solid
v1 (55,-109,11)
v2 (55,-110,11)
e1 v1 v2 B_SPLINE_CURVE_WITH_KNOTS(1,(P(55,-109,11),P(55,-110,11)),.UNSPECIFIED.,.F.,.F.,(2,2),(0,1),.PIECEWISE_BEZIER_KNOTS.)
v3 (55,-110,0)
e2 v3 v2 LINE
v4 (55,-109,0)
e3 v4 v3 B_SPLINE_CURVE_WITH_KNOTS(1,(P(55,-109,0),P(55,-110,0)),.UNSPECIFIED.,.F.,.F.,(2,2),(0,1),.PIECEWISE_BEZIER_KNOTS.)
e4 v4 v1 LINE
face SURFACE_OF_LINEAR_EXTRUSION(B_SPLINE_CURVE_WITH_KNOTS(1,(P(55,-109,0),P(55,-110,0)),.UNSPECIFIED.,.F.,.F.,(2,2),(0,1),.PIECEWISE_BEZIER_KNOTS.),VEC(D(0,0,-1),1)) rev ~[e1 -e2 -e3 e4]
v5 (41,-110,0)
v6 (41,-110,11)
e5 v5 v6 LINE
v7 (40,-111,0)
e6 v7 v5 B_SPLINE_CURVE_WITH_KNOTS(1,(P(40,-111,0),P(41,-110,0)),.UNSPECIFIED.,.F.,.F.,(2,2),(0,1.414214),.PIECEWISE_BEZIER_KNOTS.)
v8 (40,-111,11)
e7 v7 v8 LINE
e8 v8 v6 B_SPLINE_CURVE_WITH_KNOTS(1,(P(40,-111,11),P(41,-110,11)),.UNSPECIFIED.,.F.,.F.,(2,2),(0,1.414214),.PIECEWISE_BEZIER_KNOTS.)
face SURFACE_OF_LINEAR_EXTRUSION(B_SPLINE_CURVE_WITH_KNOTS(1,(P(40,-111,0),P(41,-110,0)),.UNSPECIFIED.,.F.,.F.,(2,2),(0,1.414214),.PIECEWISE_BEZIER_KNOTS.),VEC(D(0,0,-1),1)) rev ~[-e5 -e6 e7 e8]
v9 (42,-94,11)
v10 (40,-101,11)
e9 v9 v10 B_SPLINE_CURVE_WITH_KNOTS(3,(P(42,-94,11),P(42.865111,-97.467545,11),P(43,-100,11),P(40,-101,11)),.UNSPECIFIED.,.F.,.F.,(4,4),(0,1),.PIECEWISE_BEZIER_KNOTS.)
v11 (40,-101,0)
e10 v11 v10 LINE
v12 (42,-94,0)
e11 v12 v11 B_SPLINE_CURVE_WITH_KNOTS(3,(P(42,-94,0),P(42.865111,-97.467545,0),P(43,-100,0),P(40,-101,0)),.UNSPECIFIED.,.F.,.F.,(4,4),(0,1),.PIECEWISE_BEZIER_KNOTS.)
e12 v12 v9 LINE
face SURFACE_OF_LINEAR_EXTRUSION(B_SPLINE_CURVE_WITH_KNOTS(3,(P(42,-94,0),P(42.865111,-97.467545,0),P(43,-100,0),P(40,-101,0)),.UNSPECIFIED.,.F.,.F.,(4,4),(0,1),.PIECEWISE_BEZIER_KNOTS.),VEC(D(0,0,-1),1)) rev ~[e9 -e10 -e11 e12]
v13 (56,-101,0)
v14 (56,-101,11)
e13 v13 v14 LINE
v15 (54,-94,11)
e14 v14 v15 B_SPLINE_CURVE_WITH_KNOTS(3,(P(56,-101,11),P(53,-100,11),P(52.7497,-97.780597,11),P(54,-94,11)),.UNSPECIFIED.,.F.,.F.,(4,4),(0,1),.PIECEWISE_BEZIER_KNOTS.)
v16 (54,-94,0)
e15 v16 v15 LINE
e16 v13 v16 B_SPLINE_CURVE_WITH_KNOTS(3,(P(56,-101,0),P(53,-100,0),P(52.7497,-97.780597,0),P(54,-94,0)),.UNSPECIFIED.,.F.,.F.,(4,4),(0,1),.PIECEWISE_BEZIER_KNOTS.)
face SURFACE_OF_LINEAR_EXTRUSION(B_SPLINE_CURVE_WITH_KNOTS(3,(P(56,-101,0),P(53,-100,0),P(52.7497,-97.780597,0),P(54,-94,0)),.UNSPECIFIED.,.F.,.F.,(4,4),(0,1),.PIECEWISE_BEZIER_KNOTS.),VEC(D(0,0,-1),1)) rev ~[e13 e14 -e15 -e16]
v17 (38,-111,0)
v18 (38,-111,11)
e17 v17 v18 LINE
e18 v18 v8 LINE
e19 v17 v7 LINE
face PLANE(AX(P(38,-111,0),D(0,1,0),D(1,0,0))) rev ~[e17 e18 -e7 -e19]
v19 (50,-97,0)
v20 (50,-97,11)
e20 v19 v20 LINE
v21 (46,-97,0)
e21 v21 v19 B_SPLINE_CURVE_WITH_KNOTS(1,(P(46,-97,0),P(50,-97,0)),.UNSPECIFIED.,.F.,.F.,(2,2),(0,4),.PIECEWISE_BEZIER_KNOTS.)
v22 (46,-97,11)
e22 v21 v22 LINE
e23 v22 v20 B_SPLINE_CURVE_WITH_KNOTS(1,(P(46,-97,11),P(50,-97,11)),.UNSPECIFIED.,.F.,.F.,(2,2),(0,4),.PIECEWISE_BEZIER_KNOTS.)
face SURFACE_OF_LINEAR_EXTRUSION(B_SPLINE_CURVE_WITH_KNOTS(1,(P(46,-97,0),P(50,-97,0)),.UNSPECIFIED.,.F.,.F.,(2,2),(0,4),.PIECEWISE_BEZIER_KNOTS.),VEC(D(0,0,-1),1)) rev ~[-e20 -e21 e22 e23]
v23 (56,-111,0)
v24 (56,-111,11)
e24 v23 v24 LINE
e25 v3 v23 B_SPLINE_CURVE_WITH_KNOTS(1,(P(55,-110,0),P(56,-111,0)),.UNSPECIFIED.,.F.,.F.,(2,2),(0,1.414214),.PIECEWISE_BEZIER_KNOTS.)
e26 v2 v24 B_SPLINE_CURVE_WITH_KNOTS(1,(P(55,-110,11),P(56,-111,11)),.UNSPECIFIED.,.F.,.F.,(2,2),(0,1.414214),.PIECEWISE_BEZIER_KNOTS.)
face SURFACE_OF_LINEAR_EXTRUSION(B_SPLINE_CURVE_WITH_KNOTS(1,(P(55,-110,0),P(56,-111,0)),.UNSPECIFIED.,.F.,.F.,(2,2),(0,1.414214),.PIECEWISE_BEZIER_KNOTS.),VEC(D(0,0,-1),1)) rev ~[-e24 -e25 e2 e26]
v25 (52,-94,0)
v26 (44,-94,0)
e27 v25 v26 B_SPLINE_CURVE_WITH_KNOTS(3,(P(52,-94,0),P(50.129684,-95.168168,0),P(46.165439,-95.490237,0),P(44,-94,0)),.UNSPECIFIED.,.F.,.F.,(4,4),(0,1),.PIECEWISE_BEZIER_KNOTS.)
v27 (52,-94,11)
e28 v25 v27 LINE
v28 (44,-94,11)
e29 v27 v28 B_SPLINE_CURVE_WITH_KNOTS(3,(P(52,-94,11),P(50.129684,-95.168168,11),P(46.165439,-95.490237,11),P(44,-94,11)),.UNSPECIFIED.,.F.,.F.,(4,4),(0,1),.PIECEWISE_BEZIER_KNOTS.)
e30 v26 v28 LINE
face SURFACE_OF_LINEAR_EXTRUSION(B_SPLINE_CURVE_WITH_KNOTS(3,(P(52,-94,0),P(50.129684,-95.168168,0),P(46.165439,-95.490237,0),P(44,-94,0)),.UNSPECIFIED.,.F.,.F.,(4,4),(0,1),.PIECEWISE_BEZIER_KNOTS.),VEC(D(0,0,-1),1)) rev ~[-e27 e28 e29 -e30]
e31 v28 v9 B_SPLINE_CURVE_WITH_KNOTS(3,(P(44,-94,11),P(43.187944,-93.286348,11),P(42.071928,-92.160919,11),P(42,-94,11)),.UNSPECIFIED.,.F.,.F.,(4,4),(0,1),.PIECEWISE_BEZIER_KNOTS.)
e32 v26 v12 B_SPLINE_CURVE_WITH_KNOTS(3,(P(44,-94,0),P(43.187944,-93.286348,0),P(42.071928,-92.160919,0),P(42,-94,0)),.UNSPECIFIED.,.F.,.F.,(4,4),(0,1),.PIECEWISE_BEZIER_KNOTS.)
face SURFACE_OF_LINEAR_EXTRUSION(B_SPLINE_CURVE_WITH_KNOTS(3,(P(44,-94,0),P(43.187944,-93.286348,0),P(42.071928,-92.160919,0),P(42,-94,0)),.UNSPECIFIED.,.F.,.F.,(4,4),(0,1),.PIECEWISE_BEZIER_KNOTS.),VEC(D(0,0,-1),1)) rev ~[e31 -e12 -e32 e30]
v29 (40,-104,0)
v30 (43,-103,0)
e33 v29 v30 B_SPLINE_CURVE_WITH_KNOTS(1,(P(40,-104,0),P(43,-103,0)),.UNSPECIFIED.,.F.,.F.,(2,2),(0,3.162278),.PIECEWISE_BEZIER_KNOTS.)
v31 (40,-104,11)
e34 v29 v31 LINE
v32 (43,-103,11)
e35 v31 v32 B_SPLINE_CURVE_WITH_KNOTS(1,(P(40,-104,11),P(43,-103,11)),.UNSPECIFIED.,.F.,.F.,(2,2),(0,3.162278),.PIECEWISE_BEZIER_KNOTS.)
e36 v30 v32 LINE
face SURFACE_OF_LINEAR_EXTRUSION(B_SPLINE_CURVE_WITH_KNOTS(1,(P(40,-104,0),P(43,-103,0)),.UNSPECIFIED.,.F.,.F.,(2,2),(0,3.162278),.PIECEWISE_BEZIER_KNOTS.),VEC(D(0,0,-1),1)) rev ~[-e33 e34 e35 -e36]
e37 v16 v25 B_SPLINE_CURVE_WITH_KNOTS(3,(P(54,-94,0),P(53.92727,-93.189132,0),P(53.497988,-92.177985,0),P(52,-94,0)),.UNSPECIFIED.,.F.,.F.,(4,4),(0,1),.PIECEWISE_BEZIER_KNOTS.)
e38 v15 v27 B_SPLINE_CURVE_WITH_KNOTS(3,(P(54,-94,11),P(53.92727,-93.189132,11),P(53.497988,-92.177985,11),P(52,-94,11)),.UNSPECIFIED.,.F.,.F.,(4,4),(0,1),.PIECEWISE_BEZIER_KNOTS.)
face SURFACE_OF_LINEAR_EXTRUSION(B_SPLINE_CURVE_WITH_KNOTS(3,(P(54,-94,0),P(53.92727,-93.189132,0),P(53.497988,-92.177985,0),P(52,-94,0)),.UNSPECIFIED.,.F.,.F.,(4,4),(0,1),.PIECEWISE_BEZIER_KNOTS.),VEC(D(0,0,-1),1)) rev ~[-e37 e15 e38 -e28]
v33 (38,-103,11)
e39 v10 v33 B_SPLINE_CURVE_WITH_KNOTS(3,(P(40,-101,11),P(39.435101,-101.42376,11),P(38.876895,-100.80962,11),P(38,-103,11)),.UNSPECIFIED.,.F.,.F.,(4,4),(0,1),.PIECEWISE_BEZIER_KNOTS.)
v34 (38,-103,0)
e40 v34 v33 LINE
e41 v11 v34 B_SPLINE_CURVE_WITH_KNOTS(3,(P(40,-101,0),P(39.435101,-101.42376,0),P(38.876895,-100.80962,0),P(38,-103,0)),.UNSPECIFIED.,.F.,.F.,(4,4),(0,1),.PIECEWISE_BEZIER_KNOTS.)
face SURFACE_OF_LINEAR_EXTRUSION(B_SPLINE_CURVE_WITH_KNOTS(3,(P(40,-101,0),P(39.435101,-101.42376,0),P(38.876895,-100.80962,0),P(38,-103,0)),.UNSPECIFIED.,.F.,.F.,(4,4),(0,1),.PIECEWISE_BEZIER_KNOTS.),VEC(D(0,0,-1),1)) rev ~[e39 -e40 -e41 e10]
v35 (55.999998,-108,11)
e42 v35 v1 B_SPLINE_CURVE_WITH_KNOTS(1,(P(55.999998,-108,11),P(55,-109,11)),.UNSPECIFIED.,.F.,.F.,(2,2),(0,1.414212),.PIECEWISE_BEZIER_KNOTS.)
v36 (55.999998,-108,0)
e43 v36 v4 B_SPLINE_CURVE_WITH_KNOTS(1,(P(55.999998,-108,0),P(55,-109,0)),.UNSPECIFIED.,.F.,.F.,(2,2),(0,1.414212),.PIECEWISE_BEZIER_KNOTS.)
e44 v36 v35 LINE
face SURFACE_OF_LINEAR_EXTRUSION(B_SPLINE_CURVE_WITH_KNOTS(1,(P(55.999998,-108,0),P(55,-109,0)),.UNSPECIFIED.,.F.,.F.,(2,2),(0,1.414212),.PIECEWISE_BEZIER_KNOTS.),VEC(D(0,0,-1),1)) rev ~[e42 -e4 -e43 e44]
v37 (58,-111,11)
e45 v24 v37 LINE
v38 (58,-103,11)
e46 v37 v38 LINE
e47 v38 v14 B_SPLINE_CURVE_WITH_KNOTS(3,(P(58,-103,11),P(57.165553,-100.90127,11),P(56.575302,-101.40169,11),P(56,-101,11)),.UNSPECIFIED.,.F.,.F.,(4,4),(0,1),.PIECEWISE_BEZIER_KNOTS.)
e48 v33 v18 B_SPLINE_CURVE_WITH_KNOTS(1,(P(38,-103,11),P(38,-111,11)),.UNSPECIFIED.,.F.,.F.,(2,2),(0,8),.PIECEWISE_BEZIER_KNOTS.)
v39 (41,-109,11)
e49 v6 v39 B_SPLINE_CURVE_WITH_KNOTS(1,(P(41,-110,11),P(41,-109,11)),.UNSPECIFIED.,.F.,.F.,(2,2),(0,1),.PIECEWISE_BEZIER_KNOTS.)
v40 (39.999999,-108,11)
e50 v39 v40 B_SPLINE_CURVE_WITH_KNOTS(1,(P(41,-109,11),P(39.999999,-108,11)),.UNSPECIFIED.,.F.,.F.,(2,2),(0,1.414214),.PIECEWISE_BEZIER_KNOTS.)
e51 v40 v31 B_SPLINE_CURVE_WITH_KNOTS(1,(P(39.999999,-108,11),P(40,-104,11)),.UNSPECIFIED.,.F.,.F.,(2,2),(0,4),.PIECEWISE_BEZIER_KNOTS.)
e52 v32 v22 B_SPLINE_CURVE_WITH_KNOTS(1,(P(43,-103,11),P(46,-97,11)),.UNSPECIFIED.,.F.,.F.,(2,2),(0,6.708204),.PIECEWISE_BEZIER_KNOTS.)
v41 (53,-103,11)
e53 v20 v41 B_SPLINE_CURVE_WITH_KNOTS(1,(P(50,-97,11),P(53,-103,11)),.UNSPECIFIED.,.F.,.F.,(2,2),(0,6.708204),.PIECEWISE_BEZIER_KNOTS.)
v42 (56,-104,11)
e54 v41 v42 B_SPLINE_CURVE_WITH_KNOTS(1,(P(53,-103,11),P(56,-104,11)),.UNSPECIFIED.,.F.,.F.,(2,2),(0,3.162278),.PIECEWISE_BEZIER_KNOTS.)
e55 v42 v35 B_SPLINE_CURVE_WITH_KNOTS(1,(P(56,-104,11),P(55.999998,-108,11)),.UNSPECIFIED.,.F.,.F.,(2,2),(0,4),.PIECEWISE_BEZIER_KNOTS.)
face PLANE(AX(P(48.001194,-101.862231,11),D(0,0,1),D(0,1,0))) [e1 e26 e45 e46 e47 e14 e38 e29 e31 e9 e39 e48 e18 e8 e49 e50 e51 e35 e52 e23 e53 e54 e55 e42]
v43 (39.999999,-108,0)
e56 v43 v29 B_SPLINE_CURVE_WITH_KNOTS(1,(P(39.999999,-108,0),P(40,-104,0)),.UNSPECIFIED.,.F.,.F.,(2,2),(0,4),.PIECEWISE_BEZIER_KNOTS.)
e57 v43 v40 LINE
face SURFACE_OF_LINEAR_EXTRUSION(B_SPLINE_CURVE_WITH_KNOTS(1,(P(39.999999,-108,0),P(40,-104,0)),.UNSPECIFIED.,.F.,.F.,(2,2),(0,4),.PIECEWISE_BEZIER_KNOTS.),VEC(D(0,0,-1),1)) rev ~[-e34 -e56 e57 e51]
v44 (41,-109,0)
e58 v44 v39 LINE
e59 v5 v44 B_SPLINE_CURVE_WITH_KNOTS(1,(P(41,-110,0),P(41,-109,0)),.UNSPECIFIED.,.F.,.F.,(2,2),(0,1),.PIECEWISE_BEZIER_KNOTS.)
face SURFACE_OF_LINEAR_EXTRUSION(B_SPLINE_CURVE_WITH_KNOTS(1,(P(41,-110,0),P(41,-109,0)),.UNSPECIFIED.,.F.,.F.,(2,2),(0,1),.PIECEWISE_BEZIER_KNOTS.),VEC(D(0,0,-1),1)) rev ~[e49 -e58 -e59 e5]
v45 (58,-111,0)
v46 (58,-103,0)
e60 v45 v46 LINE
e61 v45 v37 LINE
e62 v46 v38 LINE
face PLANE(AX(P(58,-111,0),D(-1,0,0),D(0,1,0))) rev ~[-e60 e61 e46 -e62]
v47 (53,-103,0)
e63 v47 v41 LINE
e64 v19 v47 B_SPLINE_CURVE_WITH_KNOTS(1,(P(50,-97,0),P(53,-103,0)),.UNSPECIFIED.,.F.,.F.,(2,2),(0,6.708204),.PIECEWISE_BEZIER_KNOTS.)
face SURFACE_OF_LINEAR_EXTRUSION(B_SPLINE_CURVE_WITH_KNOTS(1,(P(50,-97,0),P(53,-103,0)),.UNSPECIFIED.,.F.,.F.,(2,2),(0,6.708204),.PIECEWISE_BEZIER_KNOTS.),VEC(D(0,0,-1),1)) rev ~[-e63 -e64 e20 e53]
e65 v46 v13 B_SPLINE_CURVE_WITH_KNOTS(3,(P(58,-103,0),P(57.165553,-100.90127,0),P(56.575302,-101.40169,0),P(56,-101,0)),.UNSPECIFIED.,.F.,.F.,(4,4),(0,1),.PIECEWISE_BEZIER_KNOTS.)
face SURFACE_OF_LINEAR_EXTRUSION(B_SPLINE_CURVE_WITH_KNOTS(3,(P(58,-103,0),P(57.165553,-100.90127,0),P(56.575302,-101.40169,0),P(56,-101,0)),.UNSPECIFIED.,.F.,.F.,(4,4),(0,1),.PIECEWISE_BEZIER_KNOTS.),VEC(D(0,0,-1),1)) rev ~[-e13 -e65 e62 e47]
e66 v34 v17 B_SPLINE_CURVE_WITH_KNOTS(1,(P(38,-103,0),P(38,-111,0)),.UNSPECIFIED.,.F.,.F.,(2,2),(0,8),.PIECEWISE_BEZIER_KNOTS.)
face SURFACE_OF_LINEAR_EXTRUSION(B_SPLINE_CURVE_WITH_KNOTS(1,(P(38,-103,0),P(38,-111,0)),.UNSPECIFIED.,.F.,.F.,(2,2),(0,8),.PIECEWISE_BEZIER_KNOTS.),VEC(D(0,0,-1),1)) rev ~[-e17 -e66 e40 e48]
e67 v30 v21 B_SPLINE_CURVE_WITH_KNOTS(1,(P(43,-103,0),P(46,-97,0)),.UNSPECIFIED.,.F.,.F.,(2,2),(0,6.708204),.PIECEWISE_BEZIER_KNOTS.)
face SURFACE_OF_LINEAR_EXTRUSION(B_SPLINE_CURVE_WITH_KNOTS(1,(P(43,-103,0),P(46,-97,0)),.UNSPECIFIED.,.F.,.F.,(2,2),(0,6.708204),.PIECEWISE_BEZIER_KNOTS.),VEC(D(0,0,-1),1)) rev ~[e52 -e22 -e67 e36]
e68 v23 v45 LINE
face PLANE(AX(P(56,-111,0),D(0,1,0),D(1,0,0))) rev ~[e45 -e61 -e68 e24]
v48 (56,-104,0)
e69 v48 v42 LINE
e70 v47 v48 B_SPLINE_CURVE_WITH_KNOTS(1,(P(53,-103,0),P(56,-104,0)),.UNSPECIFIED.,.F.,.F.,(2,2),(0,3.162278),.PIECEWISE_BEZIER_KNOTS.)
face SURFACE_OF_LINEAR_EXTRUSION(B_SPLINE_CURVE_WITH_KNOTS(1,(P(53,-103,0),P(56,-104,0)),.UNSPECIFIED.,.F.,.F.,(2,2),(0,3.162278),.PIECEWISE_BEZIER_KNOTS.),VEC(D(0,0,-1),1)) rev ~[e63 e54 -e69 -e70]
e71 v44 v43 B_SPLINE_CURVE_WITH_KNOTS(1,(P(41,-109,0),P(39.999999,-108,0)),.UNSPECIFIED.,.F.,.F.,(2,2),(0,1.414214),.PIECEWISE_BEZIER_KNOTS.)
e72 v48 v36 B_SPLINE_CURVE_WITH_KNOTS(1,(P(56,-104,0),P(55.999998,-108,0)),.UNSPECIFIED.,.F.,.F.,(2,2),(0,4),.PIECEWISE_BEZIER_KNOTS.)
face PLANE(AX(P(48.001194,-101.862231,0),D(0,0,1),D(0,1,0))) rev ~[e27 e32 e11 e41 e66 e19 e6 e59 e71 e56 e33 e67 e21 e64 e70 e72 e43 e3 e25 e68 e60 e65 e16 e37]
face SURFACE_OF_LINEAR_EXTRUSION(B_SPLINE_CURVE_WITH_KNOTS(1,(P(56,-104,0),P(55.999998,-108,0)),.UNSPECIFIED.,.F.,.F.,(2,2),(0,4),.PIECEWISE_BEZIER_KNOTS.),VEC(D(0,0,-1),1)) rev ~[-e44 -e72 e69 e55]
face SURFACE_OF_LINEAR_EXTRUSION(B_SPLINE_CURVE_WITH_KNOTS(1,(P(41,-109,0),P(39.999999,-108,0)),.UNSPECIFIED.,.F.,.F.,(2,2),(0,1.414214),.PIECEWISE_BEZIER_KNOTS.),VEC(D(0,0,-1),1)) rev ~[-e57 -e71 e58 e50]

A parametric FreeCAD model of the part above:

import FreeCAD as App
import Part
import Sketcher
from FreeCAD import Vector

doc = App.newDocument("Part")
body = doc.addObject("PartDesign::Body", "Body")

# Sketch on XY plane
sketch1 = body.newObject("Sketcher::SketchObject", "Sketch")
sketch1.AttachmentSupport = (doc.getObject("XY_Plane"), [""])
sketch1.MapMode = "FlatFace"
sketch1.addGeometry([
    Part.BSplineCurve([Vector(39.999999, -108, 0), Vector(40, -104, 0)], [2, 2], [0, 4], False, 1, [1, 1], False),  # 0
    Part.BSplineCurve([Vector(40, -104, 0), Vector(43, -103, 0)], [2, 2], [0, 3.162278], False, 1, [1, 1], False),  # 1
    Part.BSplineCurve([Vector(43, -103, 0), Vector(46, -97, 0)], [2, 2], [0, 6.708204], False, 1, [1, 1], False),  # 2
    Part.BSplineCurve([Vector(46, -97, 0), Vector(50, -97, 0)], [2, 2], [0, 4], False, 1, [1, 1], False),  # 3
    Part.BSplineCurve([Vector(50, -97, 0), Vector(53, -103, 0)], [2, 2], [0, 6.708204], False, 1, [1, 1], False),  # 4
    Part.BSplineCurve([Vector(53, -103, 0), Vector(56, -104, 0)], [2, 2], [0, 3.162278], False, 1, [1, 1], False),  # 5
    Part.BSplineCurve([Vector(56, -104, 0), Vector(55.999998, -108, 0)], [2, 2], [0, 4], False, 1, [1, 1], False),  # 6
    Part.BSplineCurve([Vector(55.999998, -108, 0), Vector(55, -109, 0)], [2, 2], [0, 1.414212], False, 1, [1, 1], False),  # 7
    Part.BSplineCurve([Vector(55, -109, 0), Vector(55, -110, 0)], [2, 2], [0, 1], False, 1, [1, 1], False),  # 8
    Part.BSplineCurve([Vector(55, -110, 0), Vector(56, -111, 0)], [2, 2], [0, 1.414214], False, 1, [1, 1], False),  # 9
    Part.LineSegment(Vector(56, -111, 0), Vector(58, -111, 0)),  # 10
    Part.LineSegment(Vector(58, -111, 0), Vector(58, -103, 0)),  # 11
    Part.BSplineCurve([Vector(58, -103, 0), Vector(57.165553, -100.90127, 0), Vector(56.575302, -101.40169, 0), Vector(56, -101, 0)], [4, 4], [0, 1], False, 3, [1, 1, 1, 1], False),  # 12
    Part.BSplineCurve([Vector(56, -101, 0), Vector(53, -100, 0), Vector(52.7497, -97.780597, 0), Vector(54, -94, 0)], [4, 4], [0, 1], False, 3, [1, 1, 1, 1], False),  # 13
    Part.BSplineCurve([Vector(54, -94, 0), Vector(53.92727, -93.189132, 0), Vector(53.497988, -92.177985, 0), Vector(52, -94, 0)], [4, 4], [0, 1], False, 3, [1, 1, 1, 1], False),  # 14
    Part.BSplineCurve([Vector(52, -94, 0), Vector(50.129684, -95.168168, 0), Vector(46.165439, -95.490237, 0), Vector(44, -94, 0)], [4, 4], [0, 1], False, 3, [1, 1, 1, 1], False),  # 15
    Part.BSplineCurve([Vector(44, -94, 0), Vector(43.187944, -93.286348, 0), Vector(42.071928, -92.160919, 0), Vector(42, -94, 0)], [4, 4], [0, 1], False, 3, [1, 1, 1, 1], False),  # 16
    Part.BSplineCurve([Vector(42, -94, 0), Vector(42.865111, -97.467545, 0), Vector(43, -100, 0), Vector(40, -101, 0)], [4, 4], [0, 1], False, 3, [1, 1, 1, 1], False),  # 17
    Part.BSplineCurve([Vector(40, -101, 0), Vector(39.435101, -101.42376, 0), Vector(38.876895, -100.80962, 0), Vector(38, -103, 0)], [4, 4], [0, 1], False, 3, [1, 1, 1, 1], False),  # 18
    Part.BSplineCurve([Vector(38, -103, 0), Vector(38, -111, 0)], [2, 2], [0, 8], False, 1, [1, 1], False),  # 19
    Part.LineSegment(Vector(38, -111, 0), Vector(40, -111, 0)),  # 20
    Part.BSplineCurve([Vector(40, -111, 0), Vector(41, -110, 0)], [2, 2], [0, 1.414214], False, 1, [1, 1], False),  # 21
    Part.BSplineCurve([Vector(41, -110, 0), Vector(41, -109, 0)], [2, 2], [0, 1], False, 1, [1, 1], False),  # 22
    Part.BSplineCurve([Vector(41, -109, 0), Vector(39.999999, -108, 0)], [2, 2], [0, 1.414214], False, 1, [1, 1], False),  # 23
], False)
sketch1.addConstraint([
    Sketcher.Constraint("Block", 0),
    Sketcher.Constraint("Block", 1),
    Sketcher.Constraint("Block", 2),
    Sketcher.Constraint("Block", 3),
    Sketcher.Constraint("Block", 4),
    Sketcher.Constraint("Block", 5),
    Sketcher.Constraint("Block", 6),
    Sketcher.Constraint("Block", 7),
    Sketcher.Constraint("Block", 8),
    Sketcher.Constraint("Block", 9),
    Sketcher.Constraint("Block", 12),
    Sketcher.Constraint("Block", 13),
    Sketcher.Constraint("Block", 14),
    Sketcher.Constraint("Block", 15),
    Sketcher.Constraint("Block", 16),
    Sketcher.Constraint("Block", 17),
    Sketcher.Constraint("Block", 18),
    Sketcher.Constraint("Block", 19),
    Sketcher.Constraint("Block", 21),
    Sketcher.Constraint("Block", 22),
    Sketcher.Constraint("Block", 23),
    Sketcher.Constraint("Coincident", 9, 2, 10, 1),
    Sketcher.Constraint("Coincident", 10, 2, 11, 1),
    Sketcher.Constraint("Coincident", 11, 2, 12, 1),
    Sketcher.Constraint("Coincident", 19, 2, 20, 1),
    Sketcher.Constraint("Coincident", 20, 2, 21, 1),
    Sketcher.Constraint("Horizontal", 10),
    Sketcher.Constraint("Vertical", 11),
])
pad1 = body.newObject("PartDesign::Pad", "Pad")
pad1.Profile = sketch1
pad1.Length = 11

doc.recompute()
